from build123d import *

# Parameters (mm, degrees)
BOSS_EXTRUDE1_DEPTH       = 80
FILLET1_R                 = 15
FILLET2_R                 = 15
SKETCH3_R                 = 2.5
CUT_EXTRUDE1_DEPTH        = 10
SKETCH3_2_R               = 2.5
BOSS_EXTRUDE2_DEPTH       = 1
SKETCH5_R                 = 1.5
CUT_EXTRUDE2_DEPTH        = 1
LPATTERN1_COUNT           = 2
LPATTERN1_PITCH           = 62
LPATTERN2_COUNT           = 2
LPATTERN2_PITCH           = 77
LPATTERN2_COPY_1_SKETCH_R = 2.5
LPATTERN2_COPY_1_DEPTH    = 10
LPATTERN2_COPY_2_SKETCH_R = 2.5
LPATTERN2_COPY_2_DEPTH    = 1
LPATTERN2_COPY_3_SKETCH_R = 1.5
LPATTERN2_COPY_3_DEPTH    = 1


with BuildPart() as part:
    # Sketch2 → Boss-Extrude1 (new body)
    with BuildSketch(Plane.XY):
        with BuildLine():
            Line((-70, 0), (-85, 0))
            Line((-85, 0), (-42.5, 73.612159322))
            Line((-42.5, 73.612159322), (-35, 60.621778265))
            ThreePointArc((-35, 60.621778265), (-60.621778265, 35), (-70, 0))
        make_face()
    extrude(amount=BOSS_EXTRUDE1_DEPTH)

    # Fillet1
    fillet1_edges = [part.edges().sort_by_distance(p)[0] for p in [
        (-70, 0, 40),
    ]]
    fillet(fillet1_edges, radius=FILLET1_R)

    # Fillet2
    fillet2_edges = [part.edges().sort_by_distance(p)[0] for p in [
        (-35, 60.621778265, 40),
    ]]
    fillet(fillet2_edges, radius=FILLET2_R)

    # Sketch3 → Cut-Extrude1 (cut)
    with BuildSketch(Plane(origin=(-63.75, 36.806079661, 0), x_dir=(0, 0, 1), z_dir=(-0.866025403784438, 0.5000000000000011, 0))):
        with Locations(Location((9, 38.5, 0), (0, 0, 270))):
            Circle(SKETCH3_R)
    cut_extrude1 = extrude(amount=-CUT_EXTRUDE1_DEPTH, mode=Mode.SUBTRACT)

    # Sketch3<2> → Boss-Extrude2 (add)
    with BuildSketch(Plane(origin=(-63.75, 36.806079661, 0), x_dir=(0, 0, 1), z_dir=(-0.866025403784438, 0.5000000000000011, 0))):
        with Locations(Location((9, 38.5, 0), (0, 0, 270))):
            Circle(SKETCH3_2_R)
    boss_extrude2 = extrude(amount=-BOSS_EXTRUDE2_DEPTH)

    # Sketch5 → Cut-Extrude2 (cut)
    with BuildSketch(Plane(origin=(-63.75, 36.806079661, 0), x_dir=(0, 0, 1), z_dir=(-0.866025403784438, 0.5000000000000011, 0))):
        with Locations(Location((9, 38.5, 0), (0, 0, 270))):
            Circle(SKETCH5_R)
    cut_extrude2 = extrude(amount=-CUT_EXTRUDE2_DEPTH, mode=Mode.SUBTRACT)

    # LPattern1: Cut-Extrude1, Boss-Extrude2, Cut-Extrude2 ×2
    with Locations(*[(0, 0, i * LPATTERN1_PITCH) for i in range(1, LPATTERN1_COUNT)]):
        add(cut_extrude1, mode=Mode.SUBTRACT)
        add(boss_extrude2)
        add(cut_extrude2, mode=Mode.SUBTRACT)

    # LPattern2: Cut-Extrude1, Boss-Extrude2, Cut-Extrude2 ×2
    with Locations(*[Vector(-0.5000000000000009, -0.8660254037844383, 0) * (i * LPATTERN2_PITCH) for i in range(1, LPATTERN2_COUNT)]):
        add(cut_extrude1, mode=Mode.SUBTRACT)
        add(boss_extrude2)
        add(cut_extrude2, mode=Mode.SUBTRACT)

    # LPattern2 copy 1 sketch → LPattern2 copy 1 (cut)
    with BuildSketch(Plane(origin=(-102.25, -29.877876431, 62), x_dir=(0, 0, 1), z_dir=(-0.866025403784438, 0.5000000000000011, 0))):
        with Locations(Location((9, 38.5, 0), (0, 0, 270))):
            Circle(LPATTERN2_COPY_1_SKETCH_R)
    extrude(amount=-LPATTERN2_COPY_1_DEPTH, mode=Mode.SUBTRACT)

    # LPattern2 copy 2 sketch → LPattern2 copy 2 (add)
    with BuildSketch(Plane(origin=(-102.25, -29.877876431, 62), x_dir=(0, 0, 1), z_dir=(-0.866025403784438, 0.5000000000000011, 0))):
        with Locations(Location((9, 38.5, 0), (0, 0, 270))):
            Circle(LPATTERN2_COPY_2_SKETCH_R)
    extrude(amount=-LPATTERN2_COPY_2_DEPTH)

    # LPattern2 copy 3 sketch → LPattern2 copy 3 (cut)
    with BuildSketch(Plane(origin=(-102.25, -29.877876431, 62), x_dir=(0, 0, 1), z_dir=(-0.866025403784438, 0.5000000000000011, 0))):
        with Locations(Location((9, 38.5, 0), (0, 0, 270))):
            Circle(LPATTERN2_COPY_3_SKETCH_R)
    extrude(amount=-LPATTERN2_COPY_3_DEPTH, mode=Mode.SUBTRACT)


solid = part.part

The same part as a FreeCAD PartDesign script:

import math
import FreeCAD as App
import Part
import Sketcher
Q = App.Units.Quantity


def edges_at(feature, points):
    """Names of the edges that pass closest to the given points."""
    edges = feature.Shape.Edges
    near = lambda p: min(range(len(edges)), key=lambda i: edges[i].distToShape(Part.Vertex(*p))[0])
    return sorted({f"Edge{near(p) + 1}" for p in points})

doc = App.newDocument("Part")
params = doc.addObject("Spreadsheet::Sheet", "Params")
for row, (alias, value) in enumerate([
    ("sketch1_radius", "70 mm"),
    ("sketch1_width", "15 mm"),
    ("sketch1_length", "15 mm"),
    ("pad1_length", "80 mm"),
    ("fillet_radius", "15 mm"),
    ("fillet2_radius", "15 mm"),
    ("sketch2_diameter", "5 mm"),
    ("pocket1_length", "10 mm"),
    ("sketch3_diameter", "5 mm"),
    ("pad2_length", "1 mm"),
    ("sketch4_diameter", "3 mm"),
    ("pocket2_length", "1 mm"),
    ("linearpattern_pitch", "62 mm"),
    ("linearpattern2_pitch", "77 mm"),
    ("sketch5_diameter", "5 mm"),
    ("pocket3_length", "10 mm"),
    ("sketch6_diameter", "5 mm"),
    ("pad3_length", "1 mm"),
    ("sketch7_diameter", "3 mm"),
    ("pocket4_length", "1 mm"),
], start=1):
    params.set(f"A{row}", alias)
    params.set(f"B{row}", "=" + value)
    params.setAlias(f"B{row}", alias)

body = doc.addObject("PartDesign::Body", "Body")

# Sketch on XY plane
sketch1 = doc.addObject("Sketcher::SketchObject", "Sketch")
body.addObject(sketch1)
sketch1.AttachmentSupport = (doc.XY_Plane, [""])
sketch1.MapMode = "FlatFace"
sketch1.addGeometry([
    Part.LineSegment(App.Vector(-85, 0, 0), App.Vector(-70, 0, 0)),
    Part.ArcOfCircle(Part.Circle(App.Vector(0, 0, 0), App.Vector(0, 0, 1), 70), math.radians(120), math.radians(180)),
    Part.LineSegment(App.Vector(-35, 61, 0), App.Vector(-42, 74, 0)),
    Part.LineSegment(App.Vector(-42, 74, 0), App.Vector(-85, 0, 0)),
], False)
sketch1.addConstraint([
    Sketcher.Constraint("Coincident", 0, 2, 1, 2),
    Sketcher.Constraint("Coincident", 1, 1, 2, 1),
    Sketcher.Constraint("Coincident", 2, 2, 3, 1),
    Sketcher.Constraint("Coincident", 3, 2, 0, 1),
    Sketcher.Constraint("Horizontal", 0),
    Sketcher.Constraint("Coincident", 1, 3, -1, 1),
    Sketcher.Constraint("PointOnObject", 0, 2, -1),
    Sketcher.Constraint("Radius", 1, Q("70 mm")),
    Sketcher.Constraint("DistanceX", 0, 1, 0, 2, Q("15 mm")),
    Sketcher.Constraint("Angle", 2, Q("120 deg")),
    Sketcher.Constraint("Angle", 3, Q("-120 deg")),
    Sketcher.Constraint("Distance", 2, Q("15 mm")),
])
sketch1.setExpression("Constraints[7]", "Params.sketch1_radius")
sketch1.setExpression("Constraints[8]", "Params.sketch1_width")
sketch1.setExpression("Constraints[11]", "Params.sketch1_length")
pad1 = doc.addObject("PartDesign::Pad", "Pad")
body.addObject(pad1)
pad1.Profile = sketch1
pad1.setExpression("Length", "Params.pad1_length")
doc.recompute()

fillet = doc.addObject("PartDesign::Fillet", "Fillet")
body.addObject(fillet)
fillet.Base = (pad1, edges_at(pad1, [(-70, 0, 40)]))
fillet.setExpression("Radius", "Params.fillet_radius")
doc.recompute()

fillet2 = doc.addObject("PartDesign::Fillet", "Fillet001")
body.addObject(fillet2)
fillet2.Base = (fillet, edges_at(fillet, [(-35, 60.622, 40)]))
fillet2.setExpression("Radius", "Params.fillet2_radius")

# Sketch on an angled plane
sketch2 = doc.addObject("Sketcher::SketchObject", "Sketch001")
body.addObject(sketch2)
sketch2.Placement = App.Placement(App.Vector(-63.75, 36.80608, 0), App.Rotation(App.Vector(0, 0, 1), App.Vector(0.5, 0.866025404, 0), App.Vector(-0.866025404, 0.5, 0), "ZXY"))
sketch2.addGeometry(Part.Circle(App.Vector(9, 38.5, 0), App.Vector(0, 0, 1), 2.5), False)
sketch2.addConstraint([
    Sketcher.Constraint("Diameter", 0, Q("5 mm")),
    Sketcher.Constraint("DistanceX", -1, 1, 0, 3, Q("9 mm")),
    Sketcher.Constraint("DistanceY", -1, 1, 0, 3, Q("38.5 mm")),
])
sketch2.setExpression("Constraints[0]", "Params.sketch2_diameter")
pocket1 = doc.addObject("PartDesign::Pocket", "Pocket")
body.addObject(pocket1)
pocket1.Profile = sketch2
pocket1.setExpression("Length", "Params.pocket1_length")

# Sketch on an angled plane
sketch3 = doc.addObject("Sketcher::SketchObject", "Sketch002")
body.addObject(sketch3)
sketch3.Placement = App.Placement(App.Vector(-63.75, 36.80608, 0), App.Rotation(App.Vector(0, 0, 1), App.Vector(0.5, 0.866025404, 0), App.Vector(-0.866025404, 0.5, 0), "ZXY"))
sketch3.addGeometry(Part.Circle(App.Vector(9, 38.5, 0), App.Vector(0, 0, 1), 2.5), False)
sketch3.addConstraint([
    Sketcher.Constraint("Diameter", 0, Q("5 mm")),
    Sketcher.Constraint("DistanceX", -1, 1, 0, 3, Q("9 mm")),
    Sketcher.Constraint("DistanceY", -1, 1, 0, 3, Q("38.5 mm")),
])
sketch3.setExpression("Constraints[0]", "Params.sketch3_diameter")
pad2 = doc.addObject("PartDesign::Pad", "Pad001")
body.addObject(pad2)
pad2.Profile = sketch3
pad2.setExpression("Length", "Params.pad2_length")
pad2.Reversed = True

# Sketch on an angled plane
sketch4 = doc.addObject("Sketcher::SketchObject", "Sketch003")
body.addObject(sketch4)
sketch4.Placement = App.Placement(App.Vector(-63.75, 36.80608, 0), App.Rotation(App.Vector(0, 0, 1), App.Vector(0.5, 0.866025404, 0), App.Vector(-0.866025404, 0.5, 0), "ZXY"))
sketch4.addGeometry(Part.Circle(App.Vector(9, 38.5, 0), App.Vector(0, 0, 1), 1.5), False)
sketch4.addConstraint([
    Sketcher.Constraint("Diameter", 0, Q("3 mm")),
    Sketcher.Constraint("DistanceX", -1, 1, 0, 3, Q("9 mm")),
    Sketcher.Constraint("DistanceY", -1, 1, 0, 3, Q("38.5 mm")),
])
sketch4.setExpression("Constraints[0]", "Params.sketch4_diameter")
pocket2 = doc.addObject("PartDesign::Pocket", "Pocket001")
body.addObject(pocket2)
pocket2.Profile = sketch4
pocket2.setExpression("Length", "Params.pocket2_length")
doc.recompute()

linearpattern = doc.addObject("PartDesign::LinearPattern", "LinearPattern")
body.addObject(linearpattern)
linearpattern.Originals = [pocket1, pad2, pocket2]
linearpattern.Direction = (doc.Z_Axis, [""])
linearpattern.Mode = "offset"
linearpattern.setExpression("Offset", "Params.linearpattern_pitch")
linearpattern.Occurrences = 2
body.Tip = linearpattern
doc.recompute()

datumline = doc.addObject("PartDesign::Line", "DatumLine")
body.addObject(datumline)
datumline.Placement = App.Placement(App.Vector(0, 0, 0), App.Rotation(App.Vector(0, 0, 1), App.Vector(-0.5, -0.866025404, 0)))
linearpattern2 = doc.addObject("PartDesign::LinearPattern", "LinearPattern001")
body.addObject(linearpattern2)
linearpattern2.Originals = [pocket1, pad2, pocket2]
linearpattern2.Direction = (datumline, [""])
linearpattern2.Mode = "offset"
linearpattern2.setExpression("Offset", "Params.linearpattern2_pitch")
linearpattern2.Occurrences = 2
body.Tip = linearpattern2

# Sketch on an angled plane
sketch5 = doc.addObject("Sketcher::SketchObject", "Sketch004")
body.addObject(sketch5)
sketch5.Placement = App.Placement(App.Vector(-102.25, -29.877876, 62), App.Rotation(App.Vector(0, 0, 1), App.Vector(0.5, 0.866025404, 0), App.Vector(-0.866025404, 0.5, 0), "ZXY"))
sketch5.addGeometry(Part.Circle(App.Vector(9, 38.5, 0), App.Vector(0, 0, 1), 2.5), False)
sketch5.addConstraint([
    Sketcher.Constraint("Diameter", 0, Q("5 mm")),
    Sketcher.Constraint("DistanceX", -1, 1, 0, 3, Q("9 mm")),
    Sketcher.Constraint("DistanceY", -1, 1, 0, 3, Q("38.5 mm")),
])
sketch5.setExpression("Constraints[0]", "Params.sketch5_diameter")
pocket3 = doc.addObject("PartDesign::Pocket", "Pocket002")
body.addObject(pocket3)
pocket3.Profile = sketch5
pocket3.setExpression("Length", "Params.pocket3_length")

# Sketch on an angled plane
sketch6 = doc.addObject("Sketcher::SketchObject", "Sketch005")
body.addObject(sketch6)
sketch6.Placement = App.Placement(App.Vector(-102.25, -29.877876, 62), App.Rotation(App.Vector(0, 0, 1), App.Vector(0.5, 0.866025404, 0), App.Vector(-0.866025404, 0.5, 0), "ZXY"))
sketch6.addGeometry(Part.Circle(App.Vector(9, 38.5, 0), App.Vector(0, 0, 1), 2.5), False)
sketch6.addConstraint([
    Sketcher.Constraint("Diameter", 0, Q("5 mm")),
    Sketcher.Constraint("DistanceX", -1, 1, 0, 3, Q("9 mm")),
    Sketcher.Constraint("DistanceY", -1, 1, 0, 3, Q("38.5 mm")),
])
sketch6.setExpression("Constraints[0]", "Params.sketch6_diameter")
pad3 = doc.addObject("PartDesign::Pad", "Pad002")
body.addObject(pad3)
pad3.Profile = sketch6
pad3.setExpression("Length", "Params.pad3_length")
pad3.Reversed = True

# Sketch on an angled plane
sketch7 = doc.addObject("Sketcher::SketchObject", "Sketch006")
body.addObject(sketch7)
sketch7.Placement = App.Placement(App.Vector(-102.25, -29.877876, 62), App.Rotation(App.Vector(0, 0, 1), App.Vector(0.5, 0.866025404, 0), App.Vector(-0.866025404, 0.5, 0), "ZXY"))
sketch7.addGeometry(Part.Circle(App.Vector(9, 38.5, 0), App.Vector(0, 0, 1), 1.5), False)
sketch7.addConstraint([
    Sketcher.Constraint("Diameter", 0, Q("3 mm")),
    Sketcher.Constraint("DistanceX", -1, 1, 0, 3, Q("9 mm")),
    Sketcher.Constraint("DistanceY", -1, 1, 0, 3, Q("38.5 mm")),
])
sketch7.setExpression("Constraints[0]", "Params.sketch7_diameter")
pocket4 = doc.addObject("PartDesign::Pocket", "Pocket003")
body.addObject(pocket4)
pocket4.Profile = sketch7
pocket4.setExpression("Length", "Params.pocket4_length")

doc.recompute()
